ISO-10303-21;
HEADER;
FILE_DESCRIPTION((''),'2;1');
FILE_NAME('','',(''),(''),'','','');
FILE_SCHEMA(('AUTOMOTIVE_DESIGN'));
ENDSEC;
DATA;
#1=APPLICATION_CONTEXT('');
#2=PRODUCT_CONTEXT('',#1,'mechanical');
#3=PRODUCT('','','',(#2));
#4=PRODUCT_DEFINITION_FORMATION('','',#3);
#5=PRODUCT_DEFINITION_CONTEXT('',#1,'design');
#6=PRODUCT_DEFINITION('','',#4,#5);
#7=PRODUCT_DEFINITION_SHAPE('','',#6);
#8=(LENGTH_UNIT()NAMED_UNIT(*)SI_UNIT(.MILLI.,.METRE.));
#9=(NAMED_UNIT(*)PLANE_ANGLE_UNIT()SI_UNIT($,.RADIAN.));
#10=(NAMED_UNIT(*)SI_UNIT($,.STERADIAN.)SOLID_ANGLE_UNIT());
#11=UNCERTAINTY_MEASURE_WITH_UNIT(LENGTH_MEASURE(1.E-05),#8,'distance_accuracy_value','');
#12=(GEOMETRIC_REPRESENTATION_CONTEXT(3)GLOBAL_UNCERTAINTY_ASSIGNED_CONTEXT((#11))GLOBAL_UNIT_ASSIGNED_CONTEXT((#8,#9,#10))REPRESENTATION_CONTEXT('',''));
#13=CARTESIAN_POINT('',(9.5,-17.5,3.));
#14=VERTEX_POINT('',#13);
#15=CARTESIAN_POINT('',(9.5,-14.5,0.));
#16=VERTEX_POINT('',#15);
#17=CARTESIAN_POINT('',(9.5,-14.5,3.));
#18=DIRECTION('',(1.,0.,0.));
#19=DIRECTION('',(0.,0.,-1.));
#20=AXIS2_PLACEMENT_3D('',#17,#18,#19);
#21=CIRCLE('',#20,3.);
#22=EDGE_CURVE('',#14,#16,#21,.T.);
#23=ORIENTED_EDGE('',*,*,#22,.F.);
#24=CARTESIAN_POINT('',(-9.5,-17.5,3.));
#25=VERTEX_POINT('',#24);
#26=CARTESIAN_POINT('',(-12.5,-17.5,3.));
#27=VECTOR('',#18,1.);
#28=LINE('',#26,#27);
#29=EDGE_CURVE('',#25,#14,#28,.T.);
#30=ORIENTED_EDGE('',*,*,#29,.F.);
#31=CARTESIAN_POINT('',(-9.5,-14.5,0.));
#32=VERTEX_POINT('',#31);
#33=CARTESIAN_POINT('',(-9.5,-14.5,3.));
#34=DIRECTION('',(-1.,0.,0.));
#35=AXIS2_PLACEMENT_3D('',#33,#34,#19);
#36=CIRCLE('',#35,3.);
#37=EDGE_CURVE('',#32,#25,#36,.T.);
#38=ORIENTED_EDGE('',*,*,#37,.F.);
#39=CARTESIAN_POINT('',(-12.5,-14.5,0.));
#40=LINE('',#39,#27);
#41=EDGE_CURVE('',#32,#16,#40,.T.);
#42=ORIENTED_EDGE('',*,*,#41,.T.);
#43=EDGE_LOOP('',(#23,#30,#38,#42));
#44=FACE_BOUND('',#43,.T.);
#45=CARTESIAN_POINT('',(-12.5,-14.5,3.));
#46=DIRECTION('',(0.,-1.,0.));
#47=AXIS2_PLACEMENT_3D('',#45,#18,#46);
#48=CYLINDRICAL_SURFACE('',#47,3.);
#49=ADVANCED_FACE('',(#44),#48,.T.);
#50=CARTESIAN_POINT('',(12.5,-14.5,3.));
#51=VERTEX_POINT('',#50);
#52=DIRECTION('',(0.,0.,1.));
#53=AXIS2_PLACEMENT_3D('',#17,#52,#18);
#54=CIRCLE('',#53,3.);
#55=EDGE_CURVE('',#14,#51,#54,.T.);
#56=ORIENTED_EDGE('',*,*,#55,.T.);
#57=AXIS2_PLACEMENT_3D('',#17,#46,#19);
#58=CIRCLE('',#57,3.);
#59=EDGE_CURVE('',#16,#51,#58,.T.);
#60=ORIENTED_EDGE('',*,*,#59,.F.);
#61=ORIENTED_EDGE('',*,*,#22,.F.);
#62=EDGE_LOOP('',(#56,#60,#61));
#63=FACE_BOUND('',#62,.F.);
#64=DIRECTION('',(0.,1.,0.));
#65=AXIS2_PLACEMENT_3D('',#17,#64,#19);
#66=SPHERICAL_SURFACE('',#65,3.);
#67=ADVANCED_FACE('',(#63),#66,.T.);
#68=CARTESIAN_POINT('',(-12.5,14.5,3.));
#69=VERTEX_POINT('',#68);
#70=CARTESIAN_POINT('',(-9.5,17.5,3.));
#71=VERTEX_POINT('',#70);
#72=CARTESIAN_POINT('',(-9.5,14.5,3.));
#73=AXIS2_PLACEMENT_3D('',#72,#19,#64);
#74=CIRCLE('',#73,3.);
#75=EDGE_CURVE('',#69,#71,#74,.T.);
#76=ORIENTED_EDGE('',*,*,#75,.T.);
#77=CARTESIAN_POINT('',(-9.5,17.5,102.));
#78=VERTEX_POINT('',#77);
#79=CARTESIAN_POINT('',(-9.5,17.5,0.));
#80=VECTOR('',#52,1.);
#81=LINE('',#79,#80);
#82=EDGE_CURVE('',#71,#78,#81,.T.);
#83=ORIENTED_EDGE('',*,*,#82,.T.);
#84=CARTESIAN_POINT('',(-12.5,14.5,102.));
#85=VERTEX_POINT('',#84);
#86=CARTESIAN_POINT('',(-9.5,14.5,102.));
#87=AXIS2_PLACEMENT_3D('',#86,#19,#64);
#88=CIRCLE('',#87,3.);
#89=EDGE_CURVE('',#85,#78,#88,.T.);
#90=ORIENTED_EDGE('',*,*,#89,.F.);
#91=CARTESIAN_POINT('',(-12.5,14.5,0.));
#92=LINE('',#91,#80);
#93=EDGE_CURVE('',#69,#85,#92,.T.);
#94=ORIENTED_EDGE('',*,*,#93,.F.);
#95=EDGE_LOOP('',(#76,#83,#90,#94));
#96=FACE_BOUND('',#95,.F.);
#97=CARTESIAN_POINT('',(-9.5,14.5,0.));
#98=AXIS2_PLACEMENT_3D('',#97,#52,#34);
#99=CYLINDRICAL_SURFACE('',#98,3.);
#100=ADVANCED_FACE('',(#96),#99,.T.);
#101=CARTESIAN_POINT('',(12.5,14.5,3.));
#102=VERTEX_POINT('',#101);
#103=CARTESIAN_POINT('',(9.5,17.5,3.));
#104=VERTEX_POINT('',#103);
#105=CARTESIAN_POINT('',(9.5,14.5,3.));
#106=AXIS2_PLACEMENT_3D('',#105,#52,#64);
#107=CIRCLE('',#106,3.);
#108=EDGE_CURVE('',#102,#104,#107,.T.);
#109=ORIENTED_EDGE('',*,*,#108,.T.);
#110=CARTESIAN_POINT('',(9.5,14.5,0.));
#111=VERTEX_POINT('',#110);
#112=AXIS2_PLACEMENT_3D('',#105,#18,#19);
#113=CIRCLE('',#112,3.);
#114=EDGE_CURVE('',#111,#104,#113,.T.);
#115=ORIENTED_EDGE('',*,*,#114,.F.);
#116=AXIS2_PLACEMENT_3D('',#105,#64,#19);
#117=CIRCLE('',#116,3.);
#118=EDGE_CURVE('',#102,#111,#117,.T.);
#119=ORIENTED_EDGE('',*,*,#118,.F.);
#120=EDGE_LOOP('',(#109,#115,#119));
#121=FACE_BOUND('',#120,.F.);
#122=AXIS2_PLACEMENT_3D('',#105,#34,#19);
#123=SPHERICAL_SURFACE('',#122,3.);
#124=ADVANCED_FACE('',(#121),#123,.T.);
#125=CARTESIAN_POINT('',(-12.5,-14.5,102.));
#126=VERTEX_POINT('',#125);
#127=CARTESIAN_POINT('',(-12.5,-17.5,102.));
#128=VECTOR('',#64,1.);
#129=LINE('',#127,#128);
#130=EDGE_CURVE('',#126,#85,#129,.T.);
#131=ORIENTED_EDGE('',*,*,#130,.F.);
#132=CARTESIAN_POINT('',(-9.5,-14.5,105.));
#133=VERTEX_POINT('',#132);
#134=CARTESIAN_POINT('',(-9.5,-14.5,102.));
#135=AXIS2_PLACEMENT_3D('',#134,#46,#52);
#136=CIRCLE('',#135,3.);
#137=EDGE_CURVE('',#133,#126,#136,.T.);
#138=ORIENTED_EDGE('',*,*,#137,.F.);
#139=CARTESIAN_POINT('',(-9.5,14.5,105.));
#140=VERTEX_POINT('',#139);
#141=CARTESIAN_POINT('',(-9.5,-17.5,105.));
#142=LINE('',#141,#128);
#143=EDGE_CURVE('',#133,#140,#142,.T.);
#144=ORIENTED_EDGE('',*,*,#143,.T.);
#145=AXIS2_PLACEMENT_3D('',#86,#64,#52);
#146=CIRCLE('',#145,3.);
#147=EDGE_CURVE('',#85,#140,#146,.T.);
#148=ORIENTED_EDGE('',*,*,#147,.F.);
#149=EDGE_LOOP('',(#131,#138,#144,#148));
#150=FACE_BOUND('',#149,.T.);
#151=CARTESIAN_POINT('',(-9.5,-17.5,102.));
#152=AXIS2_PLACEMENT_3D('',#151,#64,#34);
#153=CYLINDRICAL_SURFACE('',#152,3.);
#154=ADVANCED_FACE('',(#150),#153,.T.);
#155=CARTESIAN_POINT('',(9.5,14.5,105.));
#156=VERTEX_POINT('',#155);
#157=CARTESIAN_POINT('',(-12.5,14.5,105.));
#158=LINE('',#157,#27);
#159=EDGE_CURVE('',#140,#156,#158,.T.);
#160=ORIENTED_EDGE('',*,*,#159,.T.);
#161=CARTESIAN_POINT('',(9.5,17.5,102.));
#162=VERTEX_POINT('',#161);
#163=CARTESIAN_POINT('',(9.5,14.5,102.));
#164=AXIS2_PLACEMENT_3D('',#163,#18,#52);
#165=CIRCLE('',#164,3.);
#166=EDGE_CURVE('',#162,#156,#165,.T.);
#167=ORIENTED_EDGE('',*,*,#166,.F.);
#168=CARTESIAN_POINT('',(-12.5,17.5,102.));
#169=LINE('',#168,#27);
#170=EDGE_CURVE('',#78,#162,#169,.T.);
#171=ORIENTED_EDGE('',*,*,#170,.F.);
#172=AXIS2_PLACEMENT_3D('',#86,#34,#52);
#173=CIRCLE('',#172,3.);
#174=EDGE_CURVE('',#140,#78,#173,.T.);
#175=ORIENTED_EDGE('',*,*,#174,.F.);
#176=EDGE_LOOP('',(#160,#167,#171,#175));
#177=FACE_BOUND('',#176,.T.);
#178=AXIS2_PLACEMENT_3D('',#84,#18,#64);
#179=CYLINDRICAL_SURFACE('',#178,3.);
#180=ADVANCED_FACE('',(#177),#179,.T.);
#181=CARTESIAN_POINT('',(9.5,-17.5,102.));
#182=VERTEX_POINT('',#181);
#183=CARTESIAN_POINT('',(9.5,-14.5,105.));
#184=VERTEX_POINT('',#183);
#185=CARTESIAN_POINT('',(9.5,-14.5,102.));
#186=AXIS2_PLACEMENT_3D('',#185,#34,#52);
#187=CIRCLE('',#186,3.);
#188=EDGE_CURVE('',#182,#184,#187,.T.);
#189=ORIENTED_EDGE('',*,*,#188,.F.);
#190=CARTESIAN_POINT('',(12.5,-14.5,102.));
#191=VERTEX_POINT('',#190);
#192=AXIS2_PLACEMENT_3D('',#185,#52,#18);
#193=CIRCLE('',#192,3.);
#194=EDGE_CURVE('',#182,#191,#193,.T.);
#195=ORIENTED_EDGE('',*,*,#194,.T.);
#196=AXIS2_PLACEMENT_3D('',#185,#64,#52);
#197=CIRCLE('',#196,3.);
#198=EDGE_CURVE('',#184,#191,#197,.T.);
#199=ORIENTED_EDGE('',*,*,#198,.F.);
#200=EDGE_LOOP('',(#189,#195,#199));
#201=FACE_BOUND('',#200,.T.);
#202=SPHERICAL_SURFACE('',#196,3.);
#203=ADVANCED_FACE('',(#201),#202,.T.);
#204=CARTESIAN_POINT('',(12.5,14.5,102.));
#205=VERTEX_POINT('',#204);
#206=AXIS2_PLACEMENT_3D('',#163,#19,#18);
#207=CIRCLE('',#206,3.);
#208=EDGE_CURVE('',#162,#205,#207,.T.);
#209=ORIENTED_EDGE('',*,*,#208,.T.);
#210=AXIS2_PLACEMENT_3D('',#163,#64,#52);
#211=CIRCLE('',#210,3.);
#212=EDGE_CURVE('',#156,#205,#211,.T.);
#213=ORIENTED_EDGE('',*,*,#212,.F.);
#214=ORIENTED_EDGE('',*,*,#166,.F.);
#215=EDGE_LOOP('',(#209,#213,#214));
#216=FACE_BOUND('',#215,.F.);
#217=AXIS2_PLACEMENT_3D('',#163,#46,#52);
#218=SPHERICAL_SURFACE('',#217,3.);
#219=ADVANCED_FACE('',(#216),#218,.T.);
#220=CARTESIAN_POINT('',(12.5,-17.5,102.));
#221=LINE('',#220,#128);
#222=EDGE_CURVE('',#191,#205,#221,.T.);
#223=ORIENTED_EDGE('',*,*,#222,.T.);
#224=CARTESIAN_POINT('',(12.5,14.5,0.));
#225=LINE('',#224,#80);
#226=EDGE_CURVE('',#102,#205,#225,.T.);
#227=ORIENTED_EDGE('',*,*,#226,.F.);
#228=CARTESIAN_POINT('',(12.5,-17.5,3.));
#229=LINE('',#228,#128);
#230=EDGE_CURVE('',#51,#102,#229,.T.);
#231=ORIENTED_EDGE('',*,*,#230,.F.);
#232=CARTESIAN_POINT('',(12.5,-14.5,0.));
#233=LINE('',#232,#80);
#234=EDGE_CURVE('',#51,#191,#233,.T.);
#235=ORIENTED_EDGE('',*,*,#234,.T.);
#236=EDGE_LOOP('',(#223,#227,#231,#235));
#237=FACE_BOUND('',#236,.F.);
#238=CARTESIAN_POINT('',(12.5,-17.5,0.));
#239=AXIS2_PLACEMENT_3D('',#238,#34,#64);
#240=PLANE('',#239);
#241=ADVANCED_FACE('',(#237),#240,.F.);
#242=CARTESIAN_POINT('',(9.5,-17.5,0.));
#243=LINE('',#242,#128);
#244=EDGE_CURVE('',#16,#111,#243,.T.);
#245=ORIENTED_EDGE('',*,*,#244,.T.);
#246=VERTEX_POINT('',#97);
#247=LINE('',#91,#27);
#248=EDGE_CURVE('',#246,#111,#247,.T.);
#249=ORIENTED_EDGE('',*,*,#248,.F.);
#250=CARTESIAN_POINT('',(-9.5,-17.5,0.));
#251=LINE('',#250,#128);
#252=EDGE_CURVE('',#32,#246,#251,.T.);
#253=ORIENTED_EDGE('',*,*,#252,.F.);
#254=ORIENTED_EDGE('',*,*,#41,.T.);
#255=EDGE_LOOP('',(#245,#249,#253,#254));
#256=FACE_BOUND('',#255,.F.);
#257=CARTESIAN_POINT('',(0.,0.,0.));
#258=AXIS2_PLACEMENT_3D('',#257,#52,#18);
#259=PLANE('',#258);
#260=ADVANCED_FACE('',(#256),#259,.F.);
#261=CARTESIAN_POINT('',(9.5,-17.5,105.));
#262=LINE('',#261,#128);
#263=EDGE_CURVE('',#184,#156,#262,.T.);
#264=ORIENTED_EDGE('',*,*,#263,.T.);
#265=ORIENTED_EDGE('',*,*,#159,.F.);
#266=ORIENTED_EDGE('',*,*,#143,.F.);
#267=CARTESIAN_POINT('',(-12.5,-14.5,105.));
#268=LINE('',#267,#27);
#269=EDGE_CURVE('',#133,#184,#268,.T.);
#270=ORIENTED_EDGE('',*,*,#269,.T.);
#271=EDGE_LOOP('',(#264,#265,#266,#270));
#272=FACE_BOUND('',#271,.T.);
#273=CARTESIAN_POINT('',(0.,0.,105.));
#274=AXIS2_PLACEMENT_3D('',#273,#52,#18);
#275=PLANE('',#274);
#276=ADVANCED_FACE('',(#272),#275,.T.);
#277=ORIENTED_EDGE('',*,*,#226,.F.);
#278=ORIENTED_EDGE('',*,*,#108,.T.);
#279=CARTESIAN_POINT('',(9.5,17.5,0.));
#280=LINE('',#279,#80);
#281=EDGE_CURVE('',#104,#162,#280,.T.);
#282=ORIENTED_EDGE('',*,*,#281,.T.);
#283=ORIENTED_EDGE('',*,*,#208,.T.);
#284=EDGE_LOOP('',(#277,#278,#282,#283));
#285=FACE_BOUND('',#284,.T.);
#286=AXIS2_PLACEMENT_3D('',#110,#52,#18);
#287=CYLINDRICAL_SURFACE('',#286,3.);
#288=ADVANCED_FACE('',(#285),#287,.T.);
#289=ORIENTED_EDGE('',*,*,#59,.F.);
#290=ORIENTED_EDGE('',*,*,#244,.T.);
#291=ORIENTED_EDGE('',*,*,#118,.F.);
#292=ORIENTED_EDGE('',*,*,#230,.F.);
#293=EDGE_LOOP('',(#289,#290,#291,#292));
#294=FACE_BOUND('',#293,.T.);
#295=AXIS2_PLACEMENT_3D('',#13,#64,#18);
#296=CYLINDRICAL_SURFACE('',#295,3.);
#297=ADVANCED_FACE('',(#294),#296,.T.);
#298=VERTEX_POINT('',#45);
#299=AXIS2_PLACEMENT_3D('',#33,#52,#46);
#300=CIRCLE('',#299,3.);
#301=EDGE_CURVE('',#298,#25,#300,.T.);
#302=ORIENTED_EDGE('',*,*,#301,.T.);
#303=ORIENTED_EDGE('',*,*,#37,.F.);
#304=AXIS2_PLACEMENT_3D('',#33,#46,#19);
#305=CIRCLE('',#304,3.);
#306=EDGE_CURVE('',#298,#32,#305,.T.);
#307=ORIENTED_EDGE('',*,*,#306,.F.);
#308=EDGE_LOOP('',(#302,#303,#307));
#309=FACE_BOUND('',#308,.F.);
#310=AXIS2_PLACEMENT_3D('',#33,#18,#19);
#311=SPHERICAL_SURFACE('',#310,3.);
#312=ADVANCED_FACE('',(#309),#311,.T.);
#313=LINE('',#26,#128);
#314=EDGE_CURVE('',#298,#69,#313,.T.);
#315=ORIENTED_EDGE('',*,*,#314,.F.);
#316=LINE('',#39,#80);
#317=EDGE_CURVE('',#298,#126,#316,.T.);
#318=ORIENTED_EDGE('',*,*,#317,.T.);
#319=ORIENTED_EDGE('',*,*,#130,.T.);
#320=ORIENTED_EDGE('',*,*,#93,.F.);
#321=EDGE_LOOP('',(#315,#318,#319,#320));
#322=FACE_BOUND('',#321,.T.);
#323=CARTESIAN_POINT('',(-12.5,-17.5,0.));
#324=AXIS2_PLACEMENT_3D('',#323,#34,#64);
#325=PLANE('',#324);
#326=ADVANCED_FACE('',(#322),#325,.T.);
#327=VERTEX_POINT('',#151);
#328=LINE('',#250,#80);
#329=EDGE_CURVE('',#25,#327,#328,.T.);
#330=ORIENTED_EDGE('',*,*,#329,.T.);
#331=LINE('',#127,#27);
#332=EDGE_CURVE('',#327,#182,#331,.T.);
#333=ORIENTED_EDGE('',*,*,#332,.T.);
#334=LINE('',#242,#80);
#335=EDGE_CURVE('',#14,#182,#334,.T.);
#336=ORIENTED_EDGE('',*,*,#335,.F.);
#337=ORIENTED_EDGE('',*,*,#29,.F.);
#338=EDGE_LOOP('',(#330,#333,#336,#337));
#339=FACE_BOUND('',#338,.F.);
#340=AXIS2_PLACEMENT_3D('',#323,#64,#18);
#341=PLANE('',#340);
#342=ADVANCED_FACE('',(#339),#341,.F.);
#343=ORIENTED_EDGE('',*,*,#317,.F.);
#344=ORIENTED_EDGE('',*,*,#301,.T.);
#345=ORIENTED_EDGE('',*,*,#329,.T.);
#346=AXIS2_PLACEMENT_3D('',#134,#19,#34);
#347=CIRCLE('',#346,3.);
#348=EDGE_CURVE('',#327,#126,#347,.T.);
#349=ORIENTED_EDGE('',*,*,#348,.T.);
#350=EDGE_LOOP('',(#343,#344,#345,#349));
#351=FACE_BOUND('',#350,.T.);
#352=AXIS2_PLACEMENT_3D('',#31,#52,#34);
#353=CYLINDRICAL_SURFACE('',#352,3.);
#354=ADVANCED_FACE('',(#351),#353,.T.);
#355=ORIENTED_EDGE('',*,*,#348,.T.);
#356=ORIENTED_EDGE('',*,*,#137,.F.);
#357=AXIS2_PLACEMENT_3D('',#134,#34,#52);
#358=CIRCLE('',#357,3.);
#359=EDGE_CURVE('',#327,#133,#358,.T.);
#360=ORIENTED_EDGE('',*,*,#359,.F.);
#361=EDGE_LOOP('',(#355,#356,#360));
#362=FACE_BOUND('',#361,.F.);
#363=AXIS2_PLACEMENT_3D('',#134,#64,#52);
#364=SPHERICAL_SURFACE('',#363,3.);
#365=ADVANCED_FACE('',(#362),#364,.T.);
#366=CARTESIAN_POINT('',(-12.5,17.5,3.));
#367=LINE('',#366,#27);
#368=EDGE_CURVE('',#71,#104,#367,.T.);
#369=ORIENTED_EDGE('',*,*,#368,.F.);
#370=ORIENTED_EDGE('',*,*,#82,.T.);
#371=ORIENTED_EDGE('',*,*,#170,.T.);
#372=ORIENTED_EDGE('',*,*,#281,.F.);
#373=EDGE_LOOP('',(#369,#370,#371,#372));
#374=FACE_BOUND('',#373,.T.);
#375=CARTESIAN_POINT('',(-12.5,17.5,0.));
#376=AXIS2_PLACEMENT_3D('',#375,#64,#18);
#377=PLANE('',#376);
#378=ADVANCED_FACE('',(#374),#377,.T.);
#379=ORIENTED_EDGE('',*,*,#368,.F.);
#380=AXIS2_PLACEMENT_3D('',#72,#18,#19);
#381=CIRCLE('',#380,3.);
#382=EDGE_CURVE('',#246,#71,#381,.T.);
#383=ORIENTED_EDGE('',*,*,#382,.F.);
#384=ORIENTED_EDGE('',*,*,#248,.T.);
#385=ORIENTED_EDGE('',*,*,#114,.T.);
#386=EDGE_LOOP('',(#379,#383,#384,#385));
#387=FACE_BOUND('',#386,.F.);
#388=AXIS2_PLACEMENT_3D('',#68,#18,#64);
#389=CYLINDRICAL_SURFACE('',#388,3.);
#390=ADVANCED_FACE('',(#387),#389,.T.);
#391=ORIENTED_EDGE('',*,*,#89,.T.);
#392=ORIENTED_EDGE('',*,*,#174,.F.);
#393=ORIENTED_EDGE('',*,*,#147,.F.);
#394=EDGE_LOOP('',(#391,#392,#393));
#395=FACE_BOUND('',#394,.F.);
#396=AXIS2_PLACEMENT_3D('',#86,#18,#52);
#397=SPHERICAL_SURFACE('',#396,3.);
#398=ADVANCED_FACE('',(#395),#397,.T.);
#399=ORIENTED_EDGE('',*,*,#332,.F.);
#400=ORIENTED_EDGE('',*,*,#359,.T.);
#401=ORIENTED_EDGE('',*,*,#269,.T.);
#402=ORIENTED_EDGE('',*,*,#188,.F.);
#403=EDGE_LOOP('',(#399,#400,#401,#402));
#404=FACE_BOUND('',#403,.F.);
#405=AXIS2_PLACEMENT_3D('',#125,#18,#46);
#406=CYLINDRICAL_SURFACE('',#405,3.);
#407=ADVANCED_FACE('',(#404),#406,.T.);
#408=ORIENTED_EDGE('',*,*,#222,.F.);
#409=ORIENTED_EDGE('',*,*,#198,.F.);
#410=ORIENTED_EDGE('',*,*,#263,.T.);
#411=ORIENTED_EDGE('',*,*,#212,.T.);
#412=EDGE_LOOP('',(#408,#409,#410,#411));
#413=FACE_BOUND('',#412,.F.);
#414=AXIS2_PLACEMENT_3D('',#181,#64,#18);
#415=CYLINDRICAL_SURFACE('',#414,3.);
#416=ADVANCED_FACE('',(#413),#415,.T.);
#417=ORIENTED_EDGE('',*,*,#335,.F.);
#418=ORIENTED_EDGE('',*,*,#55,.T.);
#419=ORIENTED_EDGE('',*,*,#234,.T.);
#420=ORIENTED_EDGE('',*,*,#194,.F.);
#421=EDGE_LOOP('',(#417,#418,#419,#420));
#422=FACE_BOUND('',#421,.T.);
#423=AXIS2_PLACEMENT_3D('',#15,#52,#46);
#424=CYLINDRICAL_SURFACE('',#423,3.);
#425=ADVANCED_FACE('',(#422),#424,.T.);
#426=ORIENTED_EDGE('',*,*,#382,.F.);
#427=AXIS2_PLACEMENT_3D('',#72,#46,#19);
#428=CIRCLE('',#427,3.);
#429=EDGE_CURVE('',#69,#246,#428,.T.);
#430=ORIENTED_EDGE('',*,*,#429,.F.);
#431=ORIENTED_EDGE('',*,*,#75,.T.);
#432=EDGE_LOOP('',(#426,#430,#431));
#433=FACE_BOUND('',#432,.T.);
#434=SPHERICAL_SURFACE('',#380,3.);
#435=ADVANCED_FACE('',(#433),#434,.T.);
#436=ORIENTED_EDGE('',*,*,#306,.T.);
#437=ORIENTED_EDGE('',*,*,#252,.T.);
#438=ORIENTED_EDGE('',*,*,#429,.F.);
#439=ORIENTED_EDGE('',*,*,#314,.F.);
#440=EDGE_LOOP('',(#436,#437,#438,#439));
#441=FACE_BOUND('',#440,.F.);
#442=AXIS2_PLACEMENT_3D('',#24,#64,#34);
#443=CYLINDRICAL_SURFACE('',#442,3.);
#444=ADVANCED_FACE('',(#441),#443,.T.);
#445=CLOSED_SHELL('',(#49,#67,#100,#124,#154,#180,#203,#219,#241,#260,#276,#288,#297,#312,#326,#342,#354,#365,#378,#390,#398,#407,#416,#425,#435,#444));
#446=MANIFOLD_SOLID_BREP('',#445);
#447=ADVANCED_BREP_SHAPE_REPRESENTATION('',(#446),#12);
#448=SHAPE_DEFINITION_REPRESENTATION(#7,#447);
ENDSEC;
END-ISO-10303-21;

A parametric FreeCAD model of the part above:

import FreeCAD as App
import Part
import Sketcher
from FreeCAD import Vector

doc = App.newDocument("Part")
params = doc.addObject("Spreadsheet::Sheet", "Params")
for row, (alias, value) in enumerate([
    ("sketch1_width", "25 mm"),
    ("sketch1_height", "35 mm"),
    ("pad1_length", "105 mm"),
    ("fillet_radius", "3 mm"),
], start=1):
    params.set(f"A{row}", alias)
    params.set(f"B{row}", "=" + value)
    params.setAlias(f"B{row}", alias)

body = doc.addObject("PartDesign::Body", "Body")

# Sketch on XY plane
sketch1 = doc.addObject("Sketcher::SketchObject", "Sketch")
body.addObject(sketch1)
sketch1.AttachmentSupport = (doc.XY_Plane, [""])
sketch1.MapMode = "FlatFace"
sketch1.addGeometry(Part.LineSegment(Vector(-12.5, 17.5, 0), Vector(-12.5, -17.5, 0)), False)
sketch1.addGeometry(Part.LineSegment(Vector(-12.5, -17.5, 0), Vector(12.5, -17.5, 0)), False)
sketch1.addGeometry(Part.LineSegment(Vector(12.5, -17.5, 0), Vector(12.5, 17.5, 0)), False)
sketch1.addGeometry(Part.LineSegment(Vector(12.5, 17.5, 0), Vector(-12.5, 17.5, 0)), False)
sketch1.addConstraint(Sketcher.Constraint("Coincident", 0, 2, 1, 1))
sketch1.addConstraint(Sketcher.Constraint("Coincident", 1, 2, 2, 1))
sketch1.addConstraint(Sketcher.Constraint("Coincident", 2, 2, 3, 1))
sketch1.addConstraint(Sketcher.Constraint("Coincident", 3, 2, 0, 1))
sketch1.addConstraint(Sketcher.Constraint("Vertical", 0))
sketch1.addConstraint(Sketcher.Constraint("Horizontal", 1))
sketch1.addConstraint(Sketcher.Constraint("Vertical", 2))
sketch1.addConstraint(Sketcher.Constraint("Horizontal", 3))
sketch1.addConstraint(Sketcher.Constraint("Symmetric", 0, 2, 2, 2, -1, 1))
sketch1.addConstraint(Sketcher.Constraint("DistanceX", 1, 1, 1, 2, 25.0))
sketch1.addConstraint(Sketcher.Constraint("DistanceY", 0, 2, 0, 1, 35.0))
sketch1.setExpression("Constraints[9]", "Params.sketch1_width")
sketch1.setExpression("Constraints[10]", "Params.sketch1_height")
pad1 = doc.addObject("PartDesign::Pad", "Pad")
body.addObject(pad1)
pad1.Profile = sketch1
pad1.setExpression("Length", "Params.pad1_length")
doc.recompute()

fillet = doc.addObject("PartDesign::Fillet", "Fillet")
body.addObject(fillet)
fillet.Base = (pad1, ["Edge1"])
fillet.UseAllEdges = True
fillet.setExpression("Radius", "Params.fillet_radius")

doc.recompute()
